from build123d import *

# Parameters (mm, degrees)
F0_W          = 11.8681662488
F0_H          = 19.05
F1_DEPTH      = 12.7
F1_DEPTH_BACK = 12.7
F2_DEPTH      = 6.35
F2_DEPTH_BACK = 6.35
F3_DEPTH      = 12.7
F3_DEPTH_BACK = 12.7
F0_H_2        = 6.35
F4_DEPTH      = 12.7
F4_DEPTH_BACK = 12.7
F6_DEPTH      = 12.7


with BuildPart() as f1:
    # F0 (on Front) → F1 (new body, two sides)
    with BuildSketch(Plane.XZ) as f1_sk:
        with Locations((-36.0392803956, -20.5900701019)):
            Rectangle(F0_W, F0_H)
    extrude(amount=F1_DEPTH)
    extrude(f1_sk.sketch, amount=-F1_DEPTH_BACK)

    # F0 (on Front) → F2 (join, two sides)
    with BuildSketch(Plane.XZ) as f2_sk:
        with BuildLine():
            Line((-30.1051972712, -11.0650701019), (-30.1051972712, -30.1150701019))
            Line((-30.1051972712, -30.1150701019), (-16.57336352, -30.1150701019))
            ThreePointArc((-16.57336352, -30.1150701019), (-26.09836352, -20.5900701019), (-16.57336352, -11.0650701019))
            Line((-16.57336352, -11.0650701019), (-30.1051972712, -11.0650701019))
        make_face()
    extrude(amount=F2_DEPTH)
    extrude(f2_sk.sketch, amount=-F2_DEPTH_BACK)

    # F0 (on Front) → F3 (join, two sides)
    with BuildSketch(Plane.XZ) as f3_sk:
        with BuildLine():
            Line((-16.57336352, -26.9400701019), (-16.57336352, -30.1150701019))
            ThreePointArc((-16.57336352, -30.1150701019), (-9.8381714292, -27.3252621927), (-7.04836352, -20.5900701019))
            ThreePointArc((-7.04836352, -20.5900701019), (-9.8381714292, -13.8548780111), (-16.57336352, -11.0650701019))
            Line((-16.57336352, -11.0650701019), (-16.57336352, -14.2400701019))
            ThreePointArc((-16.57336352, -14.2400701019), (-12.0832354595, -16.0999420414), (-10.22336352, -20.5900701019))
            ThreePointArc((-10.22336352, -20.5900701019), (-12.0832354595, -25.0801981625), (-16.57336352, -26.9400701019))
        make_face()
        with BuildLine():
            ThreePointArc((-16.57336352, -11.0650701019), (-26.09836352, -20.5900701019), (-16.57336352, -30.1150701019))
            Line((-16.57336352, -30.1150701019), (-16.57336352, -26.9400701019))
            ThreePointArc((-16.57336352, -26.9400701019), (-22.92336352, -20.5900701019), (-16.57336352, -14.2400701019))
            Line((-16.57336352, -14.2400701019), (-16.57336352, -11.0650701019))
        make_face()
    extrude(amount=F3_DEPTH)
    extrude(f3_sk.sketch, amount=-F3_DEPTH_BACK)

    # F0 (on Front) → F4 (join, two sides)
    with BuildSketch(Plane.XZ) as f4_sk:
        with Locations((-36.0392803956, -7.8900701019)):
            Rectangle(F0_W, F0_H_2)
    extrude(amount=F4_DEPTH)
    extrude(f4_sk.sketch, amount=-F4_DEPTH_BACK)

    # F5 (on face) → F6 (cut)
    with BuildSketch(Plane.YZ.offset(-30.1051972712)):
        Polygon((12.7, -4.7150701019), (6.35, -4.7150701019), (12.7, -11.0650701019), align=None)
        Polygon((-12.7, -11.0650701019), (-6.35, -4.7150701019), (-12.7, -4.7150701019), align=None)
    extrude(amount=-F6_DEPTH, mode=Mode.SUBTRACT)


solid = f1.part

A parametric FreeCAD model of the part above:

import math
import FreeCAD as App
import Part
import Sketcher

V = App.Vector
Q = App.Units.Quantity

doc = App.newDocument("Part")
body = doc.addObject("PartDesign::Body", "Body")

# Sketch on XZ plane
sketch1 = body.newObject("Sketcher::SketchObject", "Sketch")
sketch1.AttachmentSupport = (doc.getObject("XZ_Plane"), [""])
sketch1.MapMode = "FlatFace"
sketch1.addGeometry(Part.LineSegment(V(-42, -11, 0), V(-42, -30, 0)), False)
sketch1.addGeometry(Part.LineSegment(V(-42, -30, 0), V(-30, -30, 0)), False)
sketch1.addGeometry(Part.LineSegment(V(-30, -30, 0), V(-30, -11, 0)), False)
sketch1.addGeometry(Part.LineSegment(V(-30, -11, 0), V(-42, -11, 0)), False)
sketch1.addConstraint(Sketcher.Constraint("Coincident", 0, 2, 1, 1))
sketch1.addConstraint(Sketcher.Constraint("Coincident", 1, 2, 2, 1))
sketch1.addConstraint(Sketcher.Constraint("Coincident", 2, 2, 3, 1))
sketch1.addConstraint(Sketcher.Constraint("Coincident", 3, 2, 0, 1))
sketch1.addConstraint(Sketcher.Constraint("Vertical", 0))
sketch1.addConstraint(Sketcher.Constraint("Horizontal", 1))
sketch1.addConstraint(Sketcher.Constraint("Vertical", 2))
sketch1.addConstraint(Sketcher.Constraint("Horizontal", 3))
sketch1.addConstraint(Sketcher.Constraint("DistanceY", 0, 2, 0, 1, Q("0.75 in")))
sketch1.addConstraint(Sketcher.Constraint("DistanceX", 1, 1, 1, 2, 11.868166))
sketch1.addConstraint(Sketcher.Constraint("DistanceY", 0, 2, -1, 1, 30.11507))
sketch1.addConstraint(Sketcher.Constraint("DistanceX", 0, 2, -1, 1, 41.973364))
pad1 = body.newObject("PartDesign::Pad", "Pad")
pad1.Profile = sketch1
pad1.Type = "TwoLengths"
pad1.Length = Q("0.5 in")
pad1.Length2 = Q("0.5 in")

# Sketch on XZ plane
sketch2 = body.newObject("Sketcher::SketchObject", "Sketch001")
sketch2.AttachmentSupport = (doc.getObject("XZ_Plane"), [""])
sketch2.MapMode = "FlatFace"
sketch2.addGeometry(Part.LineSegment(V(-30, -11, 0), V(-30, -30, 0)), False)
sketch2.addGeometry(Part.LineSegment(V(-30, -30, 0), V(-17, -30, 0)), False)
sketch2.addGeometry(Part.ArcOfCircle(Part.Circle(V(-17, -21, 0), V(0, 0, 1), 10), math.radians(90), math.radians(270)), False)
sketch2.addGeometry(Part.LineSegment(V(-17, -11, 0), V(-30, -11, 0)), False)
sketch2.addConstraint(Sketcher.Constraint("Coincident", 0, 2, 1, 1))
sketch2.addConstraint(Sketcher.Constraint("Tangent", 1, 2, 2, 2))
sketch2.addConstraint(Sketcher.Constraint("Tangent", 2, 1, 3, 1))
sketch2.addConstraint(Sketcher.Constraint("Coincident", 3, 2, 0, 1))
sketch2.addConstraint(Sketcher.Constraint("Vertical", 0))
sketch2.addConstraint(Sketcher.Constraint("Horizontal", 1))
sketch2.addConstraint(Sketcher.Constraint("Horizontal", 3))
sketch2.addConstraint(Sketcher.Constraint("Radius", 2, Q("0.375 in")))
sketch2.addConstraint(Sketcher.Constraint("DistanceX", 1, 1, 1, 2, 13.531834))
sketch2.addConstraint(Sketcher.Constraint("DistanceY", 2, 3, -1, 1, 20.59007))
sketch2.addConstraint(Sketcher.Constraint("DistanceX", 2, 3, -1, 1, 16.573364))
pad2 = body.newObject("PartDesign::Pad", "Pad001")
pad2.Profile = sketch2
pad2.Type = "TwoLengths"
pad2.Length = Q("0.25 in")
pad2.Length2 = Q("0.25 in")

# Sketch on XZ plane
sketch3 = body.newObject("Sketcher::SketchObject", "Sketch002")
sketch3.AttachmentSupport = (doc.getObject("XZ_Plane"), [""])
sketch3.MapMode = "FlatFace"
sketch3.addGeometry(Part.Circle(V(-17, -21, 0), V(0, 0, 1), 10), False)
sketch3.addGeometry(Part.ArcOfCircle(Part.Circle(V(-17, -21, 0), V(0, 0, 1), 6), math.radians(0), math.radians(90)), False)
sketch3.addGeometry(Part.ArcOfCircle(Part.Circle(V(-17, -21, 0), V(0, 0, 1), 6), math.radians(-90), math.radians(0)), False)
sketch3.addGeometry(Part.ArcOfCircle(Part.Circle(V(-17, -21, 0), V(0, 0, 1), 6), math.radians(90), math.radians(270)), False)
sketch3.addConstraint(Sketcher.Constraint("Tangent", 1, 1, 2, 2))
sketch3.addConstraint(Sketcher.Constraint("Tangent", 2, 1, 3, 2))
sketch3.addConstraint(Sketcher.Constraint("Tangent", 3, 1, 1, 2))
sketch3.addConstraint(Sketcher.Constraint("Coincident", 1, 3, 0, 3))
sketch3.addConstraint(Sketcher.Constraint("Horizontal", 3, 3, 1, 1))
sketch3.addConstraint(Sketcher.Constraint("Vertical", 3, 3, 2, 1))
sketch3.addConstraint(Sketcher.Constraint("Vertical", 2, 1, 3, 1))
sketch3.addConstraint(Sketcher.Constraint("Diameter", 0, Q("0.75 in")))
sketch3.addConstraint(Sketcher.Constraint("Radius", 1, Q("0.25 in")))
sketch3.addConstraint(Sketcher.Constraint("DistanceY", 0, 3, -1, 1, 20.59007))
sketch3.addConstraint(Sketcher.Constraint("DistanceX", 0, 3, -1, 1, 16.573364))
pad3 = body.newObject("PartDesign::Pad", "Pad002")
pad3.Profile = sketch3
pad3.Type = "TwoLengths"
pad3.Length = Q("0.5 in")
pad3.Length2 = Q("0.5 in")

# Sketch on XZ plane
sketch4 = body.newObject("Sketcher::SketchObject", "Sketch003")
sketch4.AttachmentSupport = (doc.getObject("XZ_Plane"), [""])
sketch4.MapMode = "FlatFace"
sketch4.addGeometry(Part.LineSegment(V(-42, -5, 0), V(-42, -11, 0)), False)
sketch4.addGeometry(Part.LineSegment(V(-42, -11, 0), V(-30, -11, 0)), False)
sketch4.addGeometry(Part.LineSegment(V(-30, -11, 0), V(-30, -5, 0)), False)
sketch4.addGeometry(Part.LineSegment(V(-30, -5, 0), V(-42, -5, 0)), False)
sketch4.addConstraint(Sketcher.Constraint("Coincident", 0, 2, 1, 1))
sketch4.addConstraint(Sketcher.Constraint("Coincident", 1, 2, 2, 1))
sketch4.addConstraint(Sketcher.Constraint("Coincident", 2, 2, 3, 1))
sketch4.addConstraint(Sketcher.Constraint("Coincident", 3, 2, 0, 1))
sketch4.addConstraint(Sketcher.Constraint("Vertical", 0))
sketch4.addConstraint(Sketcher.Constraint("Horizontal", 1))
sketch4.addConstraint(Sketcher.Constraint("Vertical", 2))
sketch4.addConstraint(Sketcher.Constraint("Horizontal", 3))
sketch4.addConstraint(Sketcher.Constraint("DistanceY", 0, 2, 0, 1, Q("0.25 in")))
sketch4.addConstraint(Sketcher.Constraint("DistanceX", 1, 1, 1, 2, 11.868166))
sketch4.addConstraint(Sketcher.Constraint("DistanceY", 0, 2, -1, 1, 11.06507))
sketch4.addConstraint(Sketcher.Constraint("DistanceX", 0, 2, -1, 1, 41.973364))
pad4 = body.newObject("PartDesign::Pad", "Pad003")
pad4.Profile = sketch4
pad4.Type = "TwoLengths"
pad4.Length = Q("0.5 in")
pad4.Length2 = Q("0.5 in")

# Sketch on YZ plane
sketch5 = body.newObject("Sketcher::SketchObject", "Sketch004")
sketch5.AttachmentSupport = (doc.getObject("YZ_Plane"), [""])
sketch5.MapMode = "FlatFace"
sketch5.AttachmentOffset = App.Placement(V(0, 0, -30.105197), App.Rotation())
sketch5.addGeometry(Part.LineSegment(V(13, -5, 0), V(6, -5, 0)), False)
sketch5.addGeometry(Part.LineSegment(V(6, -5, 0), V(13, -11, 0)), False)
sketch5.addGeometry(Part.LineSegment(V(13, -11, 0), V(13, -5, 0)), False)
sketch5.addGeometry(Part.LineSegment(V(-13, -11, 0), V(-6, -5, 0)), False)
sketch5.addGeometry(Part.LineSegment(V(-6, -5, 0), V(-13, -5, 0)), False)
sketch5.addGeometry(Part.LineSegment(V(-13, -5, 0), V(-13, -11, 0)), False)
sketch5.addConstraint(Sketcher.Constraint("Coincident", 0, 2, 1, 1))
sketch5.addConstraint(Sketcher.Constraint("Coincident", 1, 2, 2, 1))
sketch5.addConstraint(Sketcher.Constraint("Coincident", 2, 2, 0, 1))
sketch5.addConstraint(Sketcher.Constraint("Coincident", 3, 2, 4, 1))
sketch5.addConstraint(Sketcher.Constraint("Coincident", 4, 2, 5, 1))
sketch5.addConstraint(Sketcher.Constraint("Coincident", 5, 2, 3, 1))
sketch5.addConstraint(Sketcher.Constraint("Horizontal", 0))
sketch5.addConstraint(Sketcher.Constraint("Vertical", 2))
sketch5.addConstraint(Sketcher.Constraint("Horizontal", 4))
sketch5.addConstraint(Sketcher.Constraint("Vertical", 5))
sketch5.addConstraint(Sketcher.Constraint("Symmetric", 0, 2, 3, 2, -2))
sketch5.addConstraint(Sketcher.Constraint("Symmetric", 1, 2, 5, 2, -2))
sketch5.addConstraint(Sketcher.Constraint("Perpendicular", 1, 3))
sketch5.addConstraint(Sketcher.Constraint("DistanceX", 4, 2, 2, 2, Q("1 in")))
sketch5.addConstraint(Sketcher.Constraint("DistanceX", 0, 2, 0, 1, Q("0.25 in")))
sketch5.addConstraint(Sketcher.Constraint("DistanceY", 0, 2, -1, 1, 4.71507))
pocket1 = body.newObject("PartDesign::Pocket", "Pocket")
pocket1.Profile = sketch5
pocket1.Length = Q("0.5 in")

doc.recompute()
